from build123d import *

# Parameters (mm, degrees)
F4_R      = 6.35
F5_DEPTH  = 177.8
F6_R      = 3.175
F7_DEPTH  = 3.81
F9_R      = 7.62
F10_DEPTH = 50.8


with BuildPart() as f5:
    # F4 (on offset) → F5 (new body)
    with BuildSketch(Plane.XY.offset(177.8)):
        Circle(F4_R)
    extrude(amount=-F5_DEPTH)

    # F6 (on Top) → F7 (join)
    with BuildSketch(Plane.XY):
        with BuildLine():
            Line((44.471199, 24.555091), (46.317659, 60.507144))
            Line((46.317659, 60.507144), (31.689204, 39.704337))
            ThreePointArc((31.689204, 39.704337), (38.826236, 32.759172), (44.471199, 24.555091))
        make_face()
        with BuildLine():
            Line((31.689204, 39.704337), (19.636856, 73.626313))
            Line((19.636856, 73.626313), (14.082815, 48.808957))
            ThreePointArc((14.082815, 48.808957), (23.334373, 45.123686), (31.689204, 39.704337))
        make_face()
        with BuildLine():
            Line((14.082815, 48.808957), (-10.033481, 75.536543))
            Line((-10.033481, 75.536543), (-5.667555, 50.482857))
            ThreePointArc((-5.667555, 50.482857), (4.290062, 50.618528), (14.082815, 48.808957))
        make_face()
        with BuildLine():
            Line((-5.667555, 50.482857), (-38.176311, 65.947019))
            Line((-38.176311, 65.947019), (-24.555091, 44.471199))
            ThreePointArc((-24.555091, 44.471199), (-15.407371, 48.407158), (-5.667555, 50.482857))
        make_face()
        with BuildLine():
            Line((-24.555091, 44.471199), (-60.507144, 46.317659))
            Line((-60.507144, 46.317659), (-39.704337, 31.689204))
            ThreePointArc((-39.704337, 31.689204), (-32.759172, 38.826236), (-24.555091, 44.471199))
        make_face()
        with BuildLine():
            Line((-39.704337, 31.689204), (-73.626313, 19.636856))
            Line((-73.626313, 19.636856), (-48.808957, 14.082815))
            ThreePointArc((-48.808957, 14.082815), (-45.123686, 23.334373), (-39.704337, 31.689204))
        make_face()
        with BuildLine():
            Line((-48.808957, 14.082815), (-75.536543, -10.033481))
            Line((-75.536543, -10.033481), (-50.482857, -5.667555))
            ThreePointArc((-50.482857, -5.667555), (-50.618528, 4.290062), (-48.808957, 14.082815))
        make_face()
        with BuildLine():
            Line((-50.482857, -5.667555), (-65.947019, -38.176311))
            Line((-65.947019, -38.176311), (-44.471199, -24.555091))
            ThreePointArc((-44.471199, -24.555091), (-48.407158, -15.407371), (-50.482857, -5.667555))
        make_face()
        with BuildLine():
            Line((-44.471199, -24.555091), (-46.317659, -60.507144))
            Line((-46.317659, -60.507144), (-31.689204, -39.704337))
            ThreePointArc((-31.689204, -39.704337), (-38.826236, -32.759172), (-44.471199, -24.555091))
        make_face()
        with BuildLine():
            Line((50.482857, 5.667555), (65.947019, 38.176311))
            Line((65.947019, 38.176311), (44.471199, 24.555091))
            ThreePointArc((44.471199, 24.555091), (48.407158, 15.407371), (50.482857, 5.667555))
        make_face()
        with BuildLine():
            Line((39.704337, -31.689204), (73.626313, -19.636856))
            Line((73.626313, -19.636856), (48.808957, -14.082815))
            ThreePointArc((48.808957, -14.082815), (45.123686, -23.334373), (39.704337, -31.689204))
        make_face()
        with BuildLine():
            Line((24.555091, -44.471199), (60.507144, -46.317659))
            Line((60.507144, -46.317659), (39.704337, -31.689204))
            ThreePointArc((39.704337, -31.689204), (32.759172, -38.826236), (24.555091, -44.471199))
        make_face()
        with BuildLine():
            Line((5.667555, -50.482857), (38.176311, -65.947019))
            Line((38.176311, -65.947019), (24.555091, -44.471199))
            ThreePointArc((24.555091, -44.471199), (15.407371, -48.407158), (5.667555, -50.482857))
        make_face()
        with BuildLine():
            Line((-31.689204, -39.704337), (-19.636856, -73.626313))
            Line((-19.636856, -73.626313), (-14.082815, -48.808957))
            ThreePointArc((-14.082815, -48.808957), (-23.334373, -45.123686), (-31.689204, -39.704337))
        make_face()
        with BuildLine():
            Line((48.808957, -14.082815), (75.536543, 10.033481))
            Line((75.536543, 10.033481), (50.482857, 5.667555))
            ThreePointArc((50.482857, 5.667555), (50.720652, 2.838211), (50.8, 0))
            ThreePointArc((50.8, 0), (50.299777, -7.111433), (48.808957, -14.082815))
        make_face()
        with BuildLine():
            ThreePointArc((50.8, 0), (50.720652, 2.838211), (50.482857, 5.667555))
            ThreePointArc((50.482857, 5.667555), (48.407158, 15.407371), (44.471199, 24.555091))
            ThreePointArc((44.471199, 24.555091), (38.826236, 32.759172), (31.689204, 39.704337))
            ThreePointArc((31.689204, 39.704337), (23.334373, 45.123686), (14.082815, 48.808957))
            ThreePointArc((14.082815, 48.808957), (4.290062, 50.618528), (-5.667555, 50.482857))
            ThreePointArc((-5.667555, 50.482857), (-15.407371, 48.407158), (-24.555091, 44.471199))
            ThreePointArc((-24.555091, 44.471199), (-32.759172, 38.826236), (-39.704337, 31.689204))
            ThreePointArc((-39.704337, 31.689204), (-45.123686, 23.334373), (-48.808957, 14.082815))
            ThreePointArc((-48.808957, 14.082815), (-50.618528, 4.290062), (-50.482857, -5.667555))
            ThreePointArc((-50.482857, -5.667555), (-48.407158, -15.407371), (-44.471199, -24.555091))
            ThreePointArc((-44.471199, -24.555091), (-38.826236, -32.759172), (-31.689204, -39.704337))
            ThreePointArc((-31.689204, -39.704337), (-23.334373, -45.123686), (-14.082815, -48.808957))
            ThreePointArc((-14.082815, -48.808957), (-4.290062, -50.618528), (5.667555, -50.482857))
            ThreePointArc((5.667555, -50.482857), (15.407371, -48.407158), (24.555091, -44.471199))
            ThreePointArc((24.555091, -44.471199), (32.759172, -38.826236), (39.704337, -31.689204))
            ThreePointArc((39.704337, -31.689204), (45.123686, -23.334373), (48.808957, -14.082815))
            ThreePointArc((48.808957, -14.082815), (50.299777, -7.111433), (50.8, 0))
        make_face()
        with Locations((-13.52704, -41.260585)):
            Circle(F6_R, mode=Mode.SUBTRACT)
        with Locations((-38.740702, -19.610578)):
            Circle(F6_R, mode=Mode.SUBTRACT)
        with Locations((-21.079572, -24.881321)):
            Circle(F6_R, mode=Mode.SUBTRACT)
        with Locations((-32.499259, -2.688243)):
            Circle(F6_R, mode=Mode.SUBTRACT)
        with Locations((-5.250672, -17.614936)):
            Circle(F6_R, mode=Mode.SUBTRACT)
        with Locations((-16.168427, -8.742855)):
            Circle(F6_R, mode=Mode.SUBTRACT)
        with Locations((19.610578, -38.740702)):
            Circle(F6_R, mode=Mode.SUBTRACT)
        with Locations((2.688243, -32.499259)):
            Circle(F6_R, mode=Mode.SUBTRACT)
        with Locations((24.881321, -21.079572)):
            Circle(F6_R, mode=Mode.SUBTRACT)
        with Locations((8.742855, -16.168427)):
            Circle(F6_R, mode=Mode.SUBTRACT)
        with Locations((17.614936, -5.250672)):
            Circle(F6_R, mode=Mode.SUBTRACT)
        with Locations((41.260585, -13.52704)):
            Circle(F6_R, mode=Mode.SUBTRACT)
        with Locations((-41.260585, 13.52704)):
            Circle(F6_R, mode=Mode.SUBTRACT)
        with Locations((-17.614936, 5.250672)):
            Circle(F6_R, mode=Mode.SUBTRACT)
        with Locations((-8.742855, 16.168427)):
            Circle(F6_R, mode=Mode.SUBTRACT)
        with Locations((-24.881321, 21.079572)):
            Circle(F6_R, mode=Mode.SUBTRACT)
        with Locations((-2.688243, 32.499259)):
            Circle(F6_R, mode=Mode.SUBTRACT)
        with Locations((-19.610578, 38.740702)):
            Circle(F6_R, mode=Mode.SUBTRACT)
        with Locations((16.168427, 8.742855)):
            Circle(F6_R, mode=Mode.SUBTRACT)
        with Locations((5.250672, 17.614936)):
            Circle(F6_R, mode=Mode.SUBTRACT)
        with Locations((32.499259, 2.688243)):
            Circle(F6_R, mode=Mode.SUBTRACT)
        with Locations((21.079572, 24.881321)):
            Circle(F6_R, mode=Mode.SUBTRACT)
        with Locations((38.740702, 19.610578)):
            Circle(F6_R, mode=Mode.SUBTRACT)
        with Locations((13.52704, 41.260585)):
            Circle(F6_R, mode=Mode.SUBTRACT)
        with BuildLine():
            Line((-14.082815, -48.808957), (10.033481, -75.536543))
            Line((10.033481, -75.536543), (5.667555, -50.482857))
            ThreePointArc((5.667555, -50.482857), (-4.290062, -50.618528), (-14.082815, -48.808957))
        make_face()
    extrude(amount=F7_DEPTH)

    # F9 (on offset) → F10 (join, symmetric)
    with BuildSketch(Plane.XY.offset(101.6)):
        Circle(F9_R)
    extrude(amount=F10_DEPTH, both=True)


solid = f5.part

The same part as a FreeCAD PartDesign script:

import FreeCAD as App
import Part
import Sketcher
Q = App.Units.Quantity

doc = App.newDocument("Part")
body = doc.addObject("PartDesign::Body", "Body")

# Sketch on XY plane
sketch1 = body.newObject("Sketcher::SketchObject", "Sketch")
sketch1.AttachmentSupport = (doc.getObject("XY_Plane"), [""])
sketch1.MapMode = "FlatFace"
sketch1.AttachmentOffset = App.Placement(App.Vector(0, 0, 7 * 25.4), App.Rotation())
sketch1.addGeometry(Part.Circle(App.Vector(0, 0, 0), App.Vector(0, 0, 1), 6), False)
sketch1.addConstraint(Sketcher.Constraint("Coincident", 0, 3, -1, 1))
sketch1.addConstraint(Sketcher.Constraint("Diameter", 0, Q("0.5 in")))
pad1 = body.newObject("PartDesign::Pad", "Pad")
pad1.Profile = sketch1
pad1.Length = Q("7 in")
pad1.Reversed = True

# Sketch on XY plane
sketch2 = body.newObject("Sketcher::SketchObject", "Sketch001")
sketch2.AttachmentSupport = (doc.getObject("XY_Plane"), [""])
sketch2.MapMode = "FlatFace"
sketch2.addGeometry(Part.LineSegment(App.Vector(44.5, 24.6, 0), App.Vector(46.3, 60.5, 0)), False)
sketch2.addGeometry(Part.LineSegment(App.Vector(46.3, 60.5, 0), App.Vector(31.7, 39.7, 0)), False)
sketch2.addGeometry(Part.LineSegment(App.Vector(31.7, 39.7, 0), App.Vector(19.6, 73.6, 0)), False)
sketch2.addGeometry(Part.LineSegment(App.Vector(19.6, 73.6, 0), App.Vector(14.1, 48.8, 0)), False)
sketch2.addGeometry(Part.LineSegment(App.Vector(14.1, 48.8, 0), App.Vector(-10, 75.5, 0)), False)
sketch2.addGeometry(Part.LineSegment(App.Vector(-10, 75.5, 0), App.Vector(-5.7, 50.5, 0)), False)
sketch2.addGeometry(Part.LineSegment(App.Vector(-5.7, 50.5, 0), App.Vector(-38.2, 65.9, 0)), False)
sketch2.addGeometry(Part.LineSegment(App.Vector(-38.2, 65.9, 0), App.Vector(-24.6, 44.5, 0)), False)
sketch2.addGeometry(Part.LineSegment(App.Vector(-24.6, 44.5, 0), App.Vector(-60.5, 46.3, 0)), False)
sketch2.addGeometry(Part.LineSegment(App.Vector(-60.5, 46.3, 0), App.Vector(-39.7, 31.7, 0)), False)
sketch2.addGeometry(Part.LineSegment(App.Vector(-39.7, 31.7, 0), App.Vector(-73.6, 19.6, 0)), False)
sketch2.addGeometry(Part.LineSegment(App.Vector(-73.6, 19.6, 0), App.Vector(-48.8, 14.1, 0)), False)
sketch2.addGeometry(Part.LineSegment(App.Vector(-48.8, 14.1, 0), App.Vector(-75.5, -10, 0)), False)
sketch2.addGeometry(Part.LineSegment(App.Vector(-75.5, -10, 0), App.Vector(-50.5, -5.7, 0)), False)
sketch2.addGeometry(Part.LineSegment(App.Vector(-50.5, -5.7, 0), App.Vector(-65.9, -38.2, 0)), False)
sketch2.addGeometry(Part.LineSegment(App.Vector(-65.9, -38.2, 0), App.Vector(-44.5, -24.6, 0)), False)
sketch2.addGeometry(Part.LineSegment(App.Vector(-44.5, -24.6, 0), App.Vector(-46.3, -60.5, 0)), False)
sketch2.addGeometry(Part.LineSegment(App.Vector(-46.3, -60.5, 0), App.Vector(-31.7, -39.7, 0)), False)
sketch2.addGeometry(Part.LineSegment(App.Vector(-31.7, -39.7, 0), App.Vector(-19.6, -73.6, 0)), False)
sketch2.addGeometry(Part.LineSegment(App.Vector(-19.6, -73.6, 0), App.Vector(-14.1, -48.8, 0)), False)
sketch2.addGeometry(Part.LineSegment(App.Vector(-14.1, -48.8, 0), App.Vector(10, -75.5, 0)), False)
sketch2.addGeometry(Part.LineSegment(App.Vector(10, -75.5, 0), App.Vector(5.7, -50.5, 0)), False)
sketch2.addGeometry(Part.LineSegment(App.Vector(5.7, -50.5, 0), App.Vector(38.2, -65.9, 0)), False)
sketch2.addGeometry(Part.LineSegment(App.Vector(38.2, -65.9, 0), App.Vector(24.6, -44.5, 0)), False)
sketch2.addGeometry(Part.LineSegment(App.Vector(24.6, -44.5, 0), App.Vector(60.5, -46.3, 0)), False)
sketch2.addGeometry(Part.LineSegment(App.Vector(60.5, -46.3, 0), App.Vector(39.7, -31.7, 0)), False)
sketch2.addGeometry(Part.LineSegment(App.Vector(39.7, -31.7, 0), App.Vector(73.6, -19.6, 0)), False)
sketch2.addGeometry(Part.LineSegment(App.Vector(73.6, -19.6, 0), App.Vector(48.8, -14.1, 0)), False)
sketch2.addGeometry(Part.LineSegment(App.Vector(48.8, -14.1, 0), App.Vector(75.5, 10, 0)), False)
sketch2.addGeometry(Part.LineSegment(App.Vector(75.5, 10, 0), App.Vector(50.5, 5.7, 0)), False)
sketch2.addGeometry(Part.LineSegment(App.Vector(50.5, 5.7, 0), App.Vector(65.9, 38.2, 0)), False)
sketch2.addGeometry(Part.LineSegment(App.Vector(65.9, 38.2, 0), App.Vector(44.5, 24.6, 0)), False)
sketch2.addGeometry(Part.Circle(App.Vector(-13.5, -41.3, 0), App.Vector(0, 0, 1), 3.2), False)
sketch2.addGeometry(Part.Circle(App.Vector(-21.1, -24.9, 0), App.Vector(0, 0, 1), 3.2), False)
sketch2.addGeometry(Part.Circle(App.Vector(-38.7, -19.6, 0), App.Vector(0, 0, 1), 3.2), False)
sketch2.addGeometry(Part.Circle(App.Vector(-32.5, -2.7, 0), App.Vector(0, 0, 1), 3.2), False)
sketch2.addGeometry(Part.Circle(App.Vector(-5.3, -17.6, 0), App.Vector(0, 0, 1), 3.2), False)
sketch2.addGeometry(Part.Circle(App.Vector(-16.2, -8.7, 0), App.Vector(0, 0, 1), 3.2), False)
sketch2.addGeometry(Part.Circle(App.Vector(19.6, -38.7, 0), App.Vector(0, 0, 1), 3.2), False)
sketch2.addGeometry(Part.Circle(App.Vector(2.7, -32.5, 0), App.Vector(0, 0, 1), 3.2), False)
sketch2.addGeometry(Part.Circle(App.Vector(8.7, -16.2, 0), App.Vector(0, 0, 1), 3.2), False)
sketch2.addGeometry(Part.Circle(App.Vector(17.6, -5.3, 0), App.Vector(0, 0, 1), 3.2), False)
sketch2.addGeometry(Part.Circle(App.Vector(24.9, -21.1, 0), App.Vector(0, 0, 1), 3.2), False)
sketch2.addGeometry(Part.Circle(App.Vector(41.3, -13.5, 0), App.Vector(0, 0, 1), 3.2), False)
sketch2.addGeometry(Part.Circle(App.Vector(-41.3, 13.5, 0), App.Vector(0, 0, 1), 3.2), False)
sketch2.addGeometry(Part.Circle(App.Vector(-24.9, 21.1, 0), App.Vector(0, 0, 1), 3.2), False)
sketch2.addGeometry(Part.Circle(App.Vector(-17.6, 5.3, 0), App.Vector(0, 0, 1), 3.2), False)
sketch2.addGeometry(Part.Circle(App.Vector(-8.7, 16.2, 0), App.Vector(0, 0, 1), 3.2), False)
sketch2.addGeometry(Part.Circle(App.Vector(-2.7, 32.5, 0), App.Vector(0, 0, 1), 3.2), False)
sketch2.addGeometry(Part.Circle(App.Vector(-19.6, 38.7, 0), App.Vector(0, 0, 1), 3.2), False)
sketch2.addGeometry(Part.Circle(App.Vector(16.2, 8.7, 0), App.Vector(0, 0, 1), 3.2), False)
sketch2.addGeometry(Part.Circle(App.Vector(5.3, 17.6, 0), App.Vector(0, 0, 1), 3.2), False)
sketch2.addGeometry(Part.Circle(App.Vector(32.5, 2.7, 0), App.Vector(0, 0, 1), 3.2), False)
sketch2.addGeometry(Part.Circle(App.Vector(38.7, 19.6, 0), App.Vector(0, 0, 1), 3.2), False)
sketch2.addGeometry(Part.Circle(App.Vector(21.1, 24.9, 0), App.Vector(0, 0, 1), 3.2), False)
sketch2.addGeometry(Part.Circle(App.Vector(13.5, 41.3, 0), App.Vector(0, 0, 1), 3.2), False)
sketch2.addConstraint(Sketcher.Constraint("Coincident", 0, 2, 1, 1))
sketch2.addConstraint(Sketcher.Constraint("Coincident", 1, 2, 2, 1))
sketch2.addConstraint(Sketcher.Constraint("Coincident", 2, 2, 3, 1))
sketch2.addConstraint(Sketcher.Constraint("Coincident", 3, 2, 4, 1))
sketch2.addConstraint(Sketcher.Constraint("Coincident", 4, 2, 5, 1))
sketch2.addConstraint(Sketcher.Constraint("Coincident", 5, 2, 6, 1))
sketch2.addConstraint(Sketcher.Constraint("Coincident", 6, 2, 7, 1))
sketch2.addConstraint(Sketcher.Constraint("Coincident", 7, 2, 8, 1))
sketch2.addConstraint(Sketcher.Constraint("Coincident", 8, 2, 9, 1))
sketch2.addConstraint(Sketcher.Constraint("Coincident", 9, 2, 10, 1))
sketch2.addConstraint(Sketcher.Constraint("Coincident", 10, 2, 11, 1))
sketch2.addConstraint(Sketcher.Constraint("Coincident", 11, 2, 12, 1))
sketch2.addConstraint(Sketcher.Constraint("Coincident", 12, 2, 13, 1))
sketch2.addConstraint(Sketcher.Constraint("Coincident", 13, 2, 14, 1))
sketch2.addConstraint(Sketcher.Constraint("Coincident", 14, 2, 15, 1))
sketch2.addConstraint(Sketcher.Constraint("Coincident", 15, 2, 16, 1))
sketch2.addConstraint(Sketcher.Constraint("Coincident", 16, 2, 17, 1))
sketch2.addConstraint(Sketcher.Constraint("Coincident", 17, 2, 18, 1))
sketch2.addConstraint(Sketcher.Constraint("Coincident", 18, 2, 19, 1))
sketch2.addConstraint(Sketcher.Constraint("Coincident", 19, 2, 20, 1))
sketch2.addConstraint(Sketcher.Constraint("Coincident", 20, 2, 21, 1))
sketch2.addConstraint(Sketcher.Constraint("Coincident", 21, 2, 22, 1))
sketch2.addConstraint(Sketcher.Constraint("Coincident", 22, 2, 23, 1))
sketch2.addConstraint(Sketcher.Constraint("Coincident", 23, 2, 24, 1))
sketch2.addConstraint(Sketcher.Constraint("Coincident", 24, 2, 25, 1))
sketch2.addConstraint(Sketcher.Constraint("Coincident", 25, 2, 26, 1))
sketch2.addConstraint(Sketcher.Constraint("Coincident", 26, 2, 27, 1))
sketch2.addConstraint(Sketcher.Constraint("Coincident", 27, 2, 28, 1))
sketch2.addConstraint(Sketcher.Constraint("Coincident", 28, 2, 29, 1))
sketch2.addConstraint(Sketcher.Constraint("Coincident", 29, 2, 30, 1))
sketch2.addConstraint(Sketcher.Constraint("Coincident", 30, 2, 31, 1))
sketch2.addConstraint(Sketcher.Constraint("Coincident", 31, 2, 0, 1))
sketch2.addConstraint(Sketcher.Constraint("Equal", 32, 33))
sketch2.addConstraint(Sketcher.Constraint("Equal", 33, 34))
sketch2.addConstraint(Sketcher.Constraint("Equal", 34, 35))
sketch2.addConstraint(Sketcher.Constraint("Equal", 35, 36))
sketch2.addConstraint(Sketcher.Constraint("Equal", 36, 37))
sketch2.addConstraint(Sketcher.Constraint("Equal", 37, 38))
sketch2.addConstraint(Sketcher.Constraint("Equal", 38, 39))
sketch2.addConstraint(Sketcher.Constraint("Equal", 39, 40))
sketch2.addConstraint(Sketcher.Constraint("Equal", 40, 41))
sketch2.addConstraint(Sketcher.Constraint("Equal", 41, 42))
sketch2.addConstraint(Sketcher.Constraint("Equal", 42, 43))
sketch2.addConstraint(Sketcher.Constraint("Equal", 43, 44))
sketch2.addConstraint(Sketcher.Constraint("Equal", 44, 45))
sketch2.addConstraint(Sketcher.Constraint("Equal", 45, 46))
sketch2.addConstraint(Sketcher.Constraint("Equal", 46, 47))
sketch2.addConstraint(Sketcher.Constraint("Equal", 47, 48))
sketch2.addConstraint(Sketcher.Constraint("Equal", 48, 49))
sketch2.addConstraint(Sketcher.Constraint("Equal", 49, 50))
sketch2.addConstraint(Sketcher.Constraint("Equal", 50, 51))
sketch2.addConstraint(Sketcher.Constraint("Equal", 51, 52))
sketch2.addConstraint(Sketcher.Constraint("Equal", 52, 53))
sketch2.addConstraint(Sketcher.Constraint("Equal", 53, 54))
sketch2.addConstraint(Sketcher.Constraint("Equal", 54, 55))
sketch2.addConstraint(Sketcher.Constraint("Symmetric", 43, 3, 44, 3, -1, 1))
sketch2.addConstraint(Sketcher.Constraint("Symmetric", 42, 3, 45, 3, -1, 1))
sketch2.addConstraint(Sketcher.Constraint("Symmetric", 41, 3, 46, 3, -1, 1))
sketch2.addConstraint(Sketcher.Constraint("Symmetric", 40, 3, 47, 3, -1, 1))
sketch2.addConstraint(Sketcher.Constraint("Symmetric", 39, 3, 48, 3, -1, 1))
sketch2.addConstraint(Sketcher.Constraint("Symmetric", 38, 3, 49, 3, -1, 1))
sketch2.addConstraint(Sketcher.Constraint("Symmetric", 37, 3, 50, 3, -1, 1))
sketch2.addConstraint(Sketcher.Constraint("Symmetric", 36, 3, 51, 3, -1, 1))
sketch2.addConstraint(Sketcher.Constraint("Symmetric", 35, 3, 52, 3, -1, 1))
sketch2.addConstraint(Sketcher.Constraint("Symmetric", 34, 3, 53, 3, -1, 1))
sketch2.addConstraint(Sketcher.Constraint("Symmetric", 33, 3, 54, 3, -1, 1))
sketch2.addConstraint(Sketcher.Constraint("Symmetric", 32, 3, 55, 3, -1, 1))
sketch2.addConstraint(Sketcher.Constraint("Symmetric", 0, 2, 16, 2, -1, 1))
sketch2.addConstraint(Sketcher.Constraint("Symmetric", 1, 2, 17, 2, -1, 1))
sketch2.addConstraint(Sketcher.Constraint("Symmetric", 2, 2, 18, 2, -1, 1))
sketch2.addConstraint(Sketcher.Constraint("Symmetric", 3, 2, 19, 2, -1, 1))
sketch2.addConstraint(Sketcher.Constraint("Symmetric", 4, 2, 20, 2, -1, 1))
sketch2.addConstraint(Sketcher.Constraint("Symmetric", 5, 2, 21, 2, -1, 1))
sketch2.addConstraint(Sketcher.Constraint("Symmetric", 6, 2, 22, 2, -1, 1))
sketch2.addConstraint(Sketcher.Constraint("Symmetric", 7, 2, 23, 2, -1, 1))
sketch2.addConstraint(Sketcher.Constraint("Symmetric", 8, 2, 24, 2, -1, 1))
sketch2.addConstraint(Sketcher.Constraint("Symmetric", 9, 2, 25, 2, -1, 1))
sketch2.addConstraint(Sketcher.Constraint("Symmetric", 10, 2, 26, 2, -1, 1))
sketch2.addConstraint(Sketcher.Constraint("Symmetric", 11, 2, 27, 2, -1, 1))
sketch2.addConstraint(Sketcher.Constraint("Symmetric", 12, 2, 28, 2, -1, 1))
sketch2.addConstraint(Sketcher.Constraint("Symmetric", 13, 2, 29, 2, -1, 1))
sketch2.addConstraint(Sketcher.Constraint("Symmetric", 14, 2, 30, 2, -1, 1))
sketch2.addConstraint(Sketcher.Constraint("Symmetric", 15, 2, 31, 2, -1, 1))
sketch2.addConstraint(Sketcher.Constraint("Perpendicular", 0, 8))
sketch2.addConstraint(Sketcher.Constraint("Perpendicular", 1, 9))
sketch2.addConstraint(Sketcher.Constraint("Perpendicular", 2, 10))
sketch2.addConstraint(Sketcher.Constraint("Perpendicular", 3, 11))
sketch2.addConstraint(Sketcher.Constraint("Perpendicular", 4, 12))
sketch2.addConstraint(Sketcher.Constraint("Perpendicular", 5, 13))
sketch2.addConstraint(Sketcher.Constraint("Perpendicular", 6, 14))
sketch2.addConstraint(Sketcher.Constraint("Perpendicular", 7, 15))
sketch2.addConstraint(Sketcher.Constraint("Equal", 0, 2))
sketch2.addConstraint(Sketcher.Constraint("Equal", 1, 3))
sketch2.addConstraint(Sketcher.Constraint("Equal", 2, 4))
sketch2.addConstraint(Sketcher.Constraint("Equal", 3, 5))
sketch2.addConstraint(Sketcher.Constraint("Equal", 4, 6))
sketch2.addConstraint(Sketcher.Constraint("Equal", 5, 7))
sketch2.addConstraint(Sketcher.Constraint("Equal", 6, 8))
sketch2.addConstraint(Sketcher.Constraint("Equal", 7, 9))
sketch2.addConstraint(Sketcher.Constraint("Equal", 8, 10))
sketch2.addConstraint(Sketcher.Constraint("Equal", 9, 11))
sketch2.addConstraint(Sketcher.Constraint("Equal", 10, 12))
sketch2.addConstraint(Sketcher.Constraint("Equal", 11, 13))
sketch2.addConstraint(Sketcher.Constraint("Equal", 12, 14))
sketch2.addConstraint(Sketcher.Constraint("Equal", 13, 15))
sketch2.addConstraint(Sketcher.Constraint("Diameter", 32, Q("0.25 in")))
sketch2.addConstraint(Sketcher.Constraint("DistanceX", 2, 2, 54, 3, Q("0.0567998 in")))
sketch2.addConstraint(Sketcher.Constraint("DistanceY", 10, 2, 45, 3, Q("0.0567998 in")))
sketch2.addConstraint(Sketcher.Constraint("DistanceY", -1, 1, 7, 2, 44.471199))
sketch2.addConstraint(Sketcher.Constraint("DistanceX", 33, 3, 36, 3, 15.8289))
sketch2.addConstraint(Sketcher.Constraint("DistanceY", 42, 3, 41, 3, 15.8289))
sketch2.addConstraint(Sketcher.Constraint("DistanceY", 51, 3, 1, 2, 22.089401))
sketch2.addConstraint(Sketcher.Constraint("DistanceX", 48, 3, 2, 2, 22.325099))
sketch2.addConstraint(Sketcher.Constraint("DistanceY", 48, 3, 5, 2, 17.983598))
sketch2.addConstraint(Sketcher.Constraint("DistanceY", 3, 2, 5, 2, 1.6739))
sketch2.addConstraint(Sketcher.Constraint("DistanceY", 35, 3, 10, 2, 22.325099))
sketch2.addConstraint(Sketcher.Constraint("DistanceX", 13, 2, 35, 3, 17.983598))
sketch2.addConstraint(Sketcher.Constraint("Distance", 1, 25.43125))
sketch2.addConstraint(Sketcher.Constraint("Distance", 2, 35.999438))
sketch2.addConstraint(Sketcher.Constraint("DistanceX", 32, 3, -1, 1, 13.52704))
sketch2.addConstraint(Sketcher.Constraint("DistanceX", 33, 3, -1, 1, 21.079572))
sketch2.addConstraint(Sketcher.Constraint("DistanceY", 33, 3, -1, 1, 24.881321))
sketch2.addConstraint(Sketcher.Constraint("DistanceY", 34, 3, -1, 1, 19.610578))
sketch2.addConstraint(Sketcher.Constraint("DistanceX", 35, 3, -1, 1, 32.499259))
sketch2.addConstraint(Sketcher.Constraint("DistanceX", -1, 1, 38, 3, 19.610578))
sketch2.addConstraint(Sketcher.Constraint("DistanceX", -1, 1, 42, 3, 24.881321))
sketch2.addConstraint(Sketcher.Constraint("DistanceY", 43, 3, -1, 1, 13.52704))
sketch2.addConstraint(Sketcher.Constraint("DistanceX", -1, 1, 0, 2, 46.317659))
sketch2.addConstraint(Sketcher.Constraint("DistanceX", 4, 2, -1, 1, 10.033481))
sketch2.addConstraint(Sketcher.Constraint("DistanceX", 6, 2, -1, 1, 38.176311))
sketch2.addConstraint(Sketcher.Constraint("DistanceY", -1, 1, 6, 2, 65.947019))
sketch2.addConstraint(Sketcher.Constraint("DistanceX", 34, 3, 33, 3, 17.66113))
sketch2.addConstraint(Sketcher.Constraint("DistanceY", 32, 3, 36, 3, 23.645649))
sketch2.addConstraint(Sketcher.Constraint("DistanceY", 36, 3, 37, 3, 8.872081))
sketch2.addConstraint(Sketcher.Constraint("DistanceY", 38, 3, 33, 3, 13.859381))
sketch2.addConstraint(Sketcher.Constraint("DistanceX", 37, 3, 39, 3, 18.85667))
sketch2.addConstraint(Sketcher.Constraint("DistanceY", 36, 3, 40, 3, 1.446509))
sketch2.addConstraint(Sketcher.Constraint("DistanceX", 37, 3, 40, 3, 24.911282))
sketch2.addConstraint(Sketcher.Constraint("DistanceX", 40, 3, 41, 3, 8.872081))
sketch2.addConstraint(Sketcher.Constraint("DistanceX", 41, 3, 43, 3, 23.645649))
pad2 = body.newObject("PartDesign::Pad", "Pad001")
pad2.Profile = sketch2
pad2.Length = Q("0.15 in")

# Sketch on XY plane
sketch3 = body.newObject("Sketcher::SketchObject", "Sketch002")
sketch3.AttachmentSupport = (doc.getObject("XY_Plane"), [""])
sketch3.MapMode = "FlatFace"
sketch3.AttachmentOffset = App.Placement(App.Vector(0, 0, 4 * 25.4), App.Rotation())
sketch3.addGeometry(Part.Circle(App.Vector(0, 0, 0), App.Vector(0, 0, 1), 8), False)
sketch3.addConstraint(Sketcher.Constraint("Coincident", 0, 3, -1, 1))
sketch3.addConstraint(Sketcher.Constraint("Diameter", 0, Q("0.6 in")))
pad3 = body.newObject("PartDesign::Pad", "Pad002")
pad3.Profile = sketch3
pad3.Length = Q("4 in")
pad3.Midplane = True

doc.recompute()
